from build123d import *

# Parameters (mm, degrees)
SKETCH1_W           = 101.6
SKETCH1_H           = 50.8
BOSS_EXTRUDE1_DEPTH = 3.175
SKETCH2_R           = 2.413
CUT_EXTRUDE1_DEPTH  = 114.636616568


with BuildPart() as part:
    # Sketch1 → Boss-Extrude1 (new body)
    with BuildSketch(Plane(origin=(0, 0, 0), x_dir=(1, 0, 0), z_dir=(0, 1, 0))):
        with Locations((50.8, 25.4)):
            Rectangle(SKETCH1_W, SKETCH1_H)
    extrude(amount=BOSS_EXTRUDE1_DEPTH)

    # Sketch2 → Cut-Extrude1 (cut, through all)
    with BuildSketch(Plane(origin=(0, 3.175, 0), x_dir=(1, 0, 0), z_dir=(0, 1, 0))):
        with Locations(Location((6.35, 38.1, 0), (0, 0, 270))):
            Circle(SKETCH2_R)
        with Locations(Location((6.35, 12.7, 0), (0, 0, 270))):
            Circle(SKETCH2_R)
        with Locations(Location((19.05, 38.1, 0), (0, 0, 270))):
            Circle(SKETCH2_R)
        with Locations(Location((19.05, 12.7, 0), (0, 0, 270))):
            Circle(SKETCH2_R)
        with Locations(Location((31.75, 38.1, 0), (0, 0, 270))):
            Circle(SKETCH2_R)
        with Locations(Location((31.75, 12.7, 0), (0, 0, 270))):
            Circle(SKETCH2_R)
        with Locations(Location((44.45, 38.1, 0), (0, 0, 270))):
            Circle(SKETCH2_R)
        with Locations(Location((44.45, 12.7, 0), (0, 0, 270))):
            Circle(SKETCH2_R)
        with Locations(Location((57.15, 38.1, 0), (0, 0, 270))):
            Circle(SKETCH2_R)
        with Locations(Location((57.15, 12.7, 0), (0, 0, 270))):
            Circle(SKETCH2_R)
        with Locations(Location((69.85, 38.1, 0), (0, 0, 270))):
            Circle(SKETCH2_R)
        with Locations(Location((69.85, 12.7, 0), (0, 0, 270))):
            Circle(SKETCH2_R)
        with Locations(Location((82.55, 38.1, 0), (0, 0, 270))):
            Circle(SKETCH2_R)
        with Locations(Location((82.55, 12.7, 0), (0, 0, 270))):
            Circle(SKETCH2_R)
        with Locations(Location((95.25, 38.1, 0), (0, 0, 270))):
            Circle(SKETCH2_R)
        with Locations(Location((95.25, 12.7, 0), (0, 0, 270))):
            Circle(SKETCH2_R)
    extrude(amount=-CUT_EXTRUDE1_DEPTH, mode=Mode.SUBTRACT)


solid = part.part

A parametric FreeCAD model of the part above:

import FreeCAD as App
import Part
import Sketcher
from FreeCAD import Vector
Q = App.Units.Quantity


def add_polygon(sketch, points):
    """Adds a closed chain of lines whose ends are joined by coincident constraints."""
    first, n = sketch.GeometryCount, len(points)
    for a, b in zip(points, points[1:] + points[:1]):
        sketch.addGeometry(Part.LineSegment(App.Vector(*a, 0), App.Vector(*b, 0)), False)
    for i in range(n):
        sketch.addConstraint(Sketcher.Constraint("Coincident", first + i, 2, first + (i + 1) % n, 1))

doc = App.newDocument("Part")
body = doc.addObject("PartDesign::Body", "Body")

sketch1 = body.newObject("Sketcher::SketchObject", "Sketch")
sketch1.AttachmentSupport = (doc.getObject("XZ_Plane"), [""])
sketch1.MapMode = "FlatFace"
add_polygon(sketch1, [(0, -50.8), (0, 0), (101.6, 0), (101.6, -50.8)])
sketch1.addConstraint([
    Sketcher.Constraint("Vertical", 0),
    Sketcher.Constraint("Horizontal", 1),
    Sketcher.Constraint("Vertical", 2),
    Sketcher.Constraint("Horizontal", 3),
    Sketcher.Constraint("Coincident", 0, 2, -1, 1),
    Sketcher.Constraint("DistanceX", 1, 1, 1, 2, Q("4 in")),
    Sketcher.Constraint("DistanceY", 0, 1, 0, 2, Q("2 in")),
])
pad1 = body.newObject("PartDesign::Pad", "Pad")
pad1.Profile = sketch1
pad1.Length = Q("0.125 in")
pad1.Reversed = True

sketch2 = body.newObject("Sketcher::SketchObject", "Sketch001")
sketch2.AttachmentSupport = (doc.getObject("XZ_Plane"), [""])
sketch2.MapMode = "FlatFace"
sketch2.AttachmentOffset = App.Placement(Vector(0, 0, -0.125 * 25.4), App.Rotation())
sketch2.addGeometry([
    Part.Circle(Vector(6.35, -38.1, 0), Vector(0, 0, 1), 2.413),
    Part.Circle(Vector(6.35, -12.7, 0), Vector(0, 0, 1), 2.413),
    Part.Circle(Vector(19.05, -38.1, 0), Vector(0, 0, 1), 2.413),
    Part.Circle(Vector(19.05, -12.7, 0), Vector(0, 0, 1), 2.413),
    Part.Circle(Vector(31.75, -38.1, 0), Vector(0, 0, 1), 2.413),
    Part.Circle(Vector(31.75, -12.7, 0), Vector(0, 0, 1), 2.413),
    Part.Circle(Vector(44.45, -38.1, 0), Vector(0, 0, 1), 2.413),
    Part.Circle(Vector(44.45, -12.7, 0), Vector(0, 0, 1), 2.413),
    Part.Circle(Vector(57.15, -38.1, 0), Vector(0, 0, 1), 2.413),
    Part.Circle(Vector(57.15, -12.7, 0), Vector(0, 0, 1), 2.413),
    Part.Circle(Vector(69.85, -38.1, 0), Vector(0, 0, 1), 2.413),
    Part.Circle(Vector(69.85, -12.7, 0), Vector(0, 0, 1), 2.413),
    Part.Circle(Vector(82.55, -38.1, 0), Vector(0, 0, 1), 2.413),
    Part.Circle(Vector(82.55, -12.7, 0), Vector(0, 0, 1), 2.413),
    Part.Circle(Vector(95.25, -38.1, 0), Vector(0, 0, 1), 2.413),
    Part.Circle(Vector(95.25, -12.7, 0), Vector(0, 0, 1), 2.413),
], False)
sketch2.addConstraint([
    Sketcher.Constraint("Equal", 0, 1),
    Sketcher.Constraint("Equal", 1, 2),
    Sketcher.Constraint("Equal", 2, 3),
    Sketcher.Constraint("Equal", 3, 4),
    Sketcher.Constraint("Equal", 4, 5),
    Sketcher.Constraint("Equal", 5, 6),
    Sketcher.Constraint("Equal", 6, 7),
    Sketcher.Constraint("Equal", 7, 8),
    Sketcher.Constraint("Equal", 8, 9),
    Sketcher.Constraint("Equal", 9, 10),
    Sketcher.Constraint("Equal", 10, 11),
    Sketcher.Constraint("Equal", 11, 12),
    Sketcher.Constraint("Equal", 12, 13),
    Sketcher.Constraint("Equal", 13, 14),
    Sketcher.Constraint("Equal", 14, 15),
    Sketcher.Constraint("Horizontal", 0, 3, 2, 3),
    Sketcher.Constraint("Horizontal", 1, 3, 3, 3),
    Sketcher.Constraint("Horizontal", 2, 3, 4, 3),
    Sketcher.Constraint("Horizontal", 3, 3, 5, 3),
    Sketcher.Constraint("Horizontal", 4, 3, 6, 3),
    Sketcher.Constraint("Horizontal", 5, 3, 7, 3),
    Sketcher.Constraint("Horizontal", 6, 3, 8, 3),
    Sketcher.Constraint("Horizontal", 7, 3, 9, 3),
    Sketcher.Constraint("Horizontal", 8, 3, 10, 3),
    Sketcher.Constraint("Horizontal", 9, 3, 11, 3),
    Sketcher.Constraint("Horizontal", 10, 3, 12, 3),
    Sketcher.Constraint("Horizontal", 11, 3, 13, 3),
    Sketcher.Constraint("Horizontal", 12, 3, 14, 3),
    Sketcher.Constraint("Horizontal", 13, 3, 15, 3),
    Sketcher.Constraint("Vertical", 0, 3, 1, 3),
    Sketcher.Constraint("Vertical", 2, 3, 3, 3),
    Sketcher.Constraint("Vertical", 4, 3, 5, 3),
    Sketcher.Constraint("Vertical", 6, 3, 7, 3),
    Sketcher.Constraint("Vertical", 8, 3, 9, 3),
    Sketcher.Constraint("Vertical", 10, 3, 11, 3),
    Sketcher.Constraint("Vertical", 12, 3, 13, 3),
    Sketcher.Constraint("Vertical", 14, 3, 15, 3),
    Sketcher.Constraint("Diameter", 0, Q("0.19 in")),
    Sketcher.Constraint("DistanceY", 0, 3, 1, 3, Q("1 in")),
    Sketcher.Constraint("DistanceX", 0, 3, 4, 3, Q("1 in")),
    Sketcher.Constraint("DistanceX", 2, 3, 6, 3, Q("1 in")),
    Sketcher.Constraint("DistanceX", 4, 3, 8, 3, Q("1 in")),
    Sketcher.Constraint("DistanceX", 6, 3, 10, 3, Q("1 in")),
    Sketcher.Constraint("DistanceX", 8, 3, 12, 3, Q("1 in")),
    Sketcher.Constraint("DistanceX", 10, 3, 14, 3, Q("1 in")),
    Sketcher.Constraint("DistanceY", 0, 3, -1, 1, Q("1.5 in")),
    Sketcher.Constraint("DistanceX", 0, 3, 2, 3, Q("0.5 in")),
    Sketcher.Constraint("DistanceX", -1, 1, 0, 3, Q("0.25 in")),
])
pocket1 = body.newObject("PartDesign::Pocket", "Pocket")
pocket1.Profile = sketch2
pocket1.Type = "ThroughAll"
pocket1.Reversed = True

doc.recompute()
